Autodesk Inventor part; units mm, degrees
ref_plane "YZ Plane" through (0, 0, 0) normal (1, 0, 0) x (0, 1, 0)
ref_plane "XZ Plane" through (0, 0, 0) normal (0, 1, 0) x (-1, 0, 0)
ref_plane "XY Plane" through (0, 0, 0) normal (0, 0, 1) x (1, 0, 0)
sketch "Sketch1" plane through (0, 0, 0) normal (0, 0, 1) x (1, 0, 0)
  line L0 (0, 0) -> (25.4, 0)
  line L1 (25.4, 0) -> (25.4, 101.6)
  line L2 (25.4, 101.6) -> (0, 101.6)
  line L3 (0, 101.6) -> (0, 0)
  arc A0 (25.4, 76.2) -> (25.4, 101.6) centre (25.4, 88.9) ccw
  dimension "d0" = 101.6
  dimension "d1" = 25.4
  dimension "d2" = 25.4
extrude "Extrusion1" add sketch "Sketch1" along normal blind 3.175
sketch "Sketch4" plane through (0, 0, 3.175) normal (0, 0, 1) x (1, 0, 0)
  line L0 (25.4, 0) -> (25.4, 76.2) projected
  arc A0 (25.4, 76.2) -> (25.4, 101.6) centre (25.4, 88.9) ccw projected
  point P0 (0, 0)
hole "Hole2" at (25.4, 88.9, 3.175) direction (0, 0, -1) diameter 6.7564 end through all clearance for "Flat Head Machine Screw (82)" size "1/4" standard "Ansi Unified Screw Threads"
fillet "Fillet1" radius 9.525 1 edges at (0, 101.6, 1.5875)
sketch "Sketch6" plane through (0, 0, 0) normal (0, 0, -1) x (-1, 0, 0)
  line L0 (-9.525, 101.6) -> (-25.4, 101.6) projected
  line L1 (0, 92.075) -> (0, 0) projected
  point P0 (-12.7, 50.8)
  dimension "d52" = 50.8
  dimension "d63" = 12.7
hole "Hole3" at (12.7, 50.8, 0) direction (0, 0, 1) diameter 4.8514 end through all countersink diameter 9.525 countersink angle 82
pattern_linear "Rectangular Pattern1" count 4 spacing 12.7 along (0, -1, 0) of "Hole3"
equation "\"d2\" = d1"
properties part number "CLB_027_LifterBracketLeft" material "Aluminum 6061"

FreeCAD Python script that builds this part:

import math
import FreeCAD as App
import Part
import Sketcher

V = App.Vector
Q = App.Units.Quantity


def edges_at(feature, points):
    """Names of the edges that pass closest to the given points."""
    edges = feature.Shape.Edges
    near = lambda p: min(range(len(edges)), key=lambda i: edges[i].distToShape(Part.Vertex(*p))[0])
    return sorted({f"Edge{near(p) + 1}" for p in points})

doc = App.newDocument("Part")
body = doc.addObject("PartDesign::Body", "Body")

# Sketch on XY plane
sketch1 = body.newObject("Sketcher::SketchObject", "Sketch")
sketch1.AttachmentSupport = (doc.getObject("XY_Plane"), [""])
sketch1.MapMode = "FlatFace"
sketch1.addGeometry([
    Part.LineSegment(V(0, 101.6, 0), V(0, 0, 0)),  # 0
    Part.LineSegment(V(0, 0, 0), V(25.4, 0, 0)),  # 1
    Part.LineSegment(V(25.4, 0, 0), V(25.4, 76.2, 0)),  # 2
    Part.ArcOfCircle(Part.Circle(V(25.4, 88.9, 0), V(0, 0, 1), 12.7), math.radians(-90), math.radians(90)),  # 3
    Part.LineSegment(V(25.4, 101.6, 0), V(0, 101.6, 0)),  # 4
], False)
sketch1.addConstraint([
    Sketcher.Constraint("Coincident", 0, 2, 1, 1),
    Sketcher.Constraint("Coincident", 1, 2, 2, 1),
    Sketcher.Constraint("Coincident", 2, 2, 3, 1),
    Sketcher.Constraint("Tangent", 3, 2, 4, 1),
    Sketcher.Constraint("Coincident", 4, 2, 0, 1),
    Sketcher.Constraint("Vertical", 0),
    Sketcher.Constraint("Horizontal", 1),
    Sketcher.Constraint("Vertical", 2),
    Sketcher.Constraint("Horizontal", 4),
    Sketcher.Constraint("Coincident", 0, 2, -1, 1),
    Sketcher.Constraint("Vertical", 3, 3, 1, 2),
    Sketcher.Constraint("Radius", 3, Q("0.5 in")),
    Sketcher.Constraint("DistanceX", 1, 1, 1, 2, Q("1 in")),
    Sketcher.Constraint("DistanceY", 0, 2, 0, 1, Q("4 in")),
])
pad1 = body.newObject("PartDesign::Pad", "Pad")
pad1.Profile = sketch1
pad1.Length = Q("0.125 in")

# Sketch on XY plane
sketch2 = body.newObject("Sketcher::SketchObject", "Sketch001")
sketch2.AttachmentSupport = (doc.getObject("XY_Plane"), [""])
sketch2.MapMode = "FlatFace"
sketch2.AttachmentOffset = App.Placement(V(0, 0, 0.125 * 25.4), App.Rotation())
sketch2.addGeometry(Part.Circle(V(25.4, 88.9, 0), V(0, 0, 1), 3.3782), False)
sketch2.addConstraint([
    Sketcher.Constraint("Diameter", 0, Q("0.266 in")),
    Sketcher.Constraint("DistanceX", -1, 1, 0, 3, Q("1 in")),
    Sketcher.Constraint("DistanceY", -1, 1, 0, 3, Q("3.5 in")),
])
doc.recompute()
hole = body.newObject("PartDesign::Hole", "Hole")
hole.Profile = sketch2
hole.ThreadType = "None"
hole.Diameter = Q("0.266 in")
hole.DepthType = "ThroughAll"
doc.recompute()

fillet = body.newObject("PartDesign::Fillet", "Fillet")
fillet.Base = (hole, edges_at(hole, [(0, 101.6, 1.587)]))
fillet.Radius = Q("0.375 in")

# Sketch on XY plane
sketch3 = body.newObject("Sketcher::SketchObject", "Sketch002")
sketch3.AttachmentSupport = (doc.getObject("XY_Plane"), [""])
sketch3.MapMode = "FlatFace"
sketch3.addGeometry(Part.Circle(V(12.7, 50.8, 0), V(0, 0, 1), 2.4257), False)
sketch3.addConstraint([
    Sketcher.Constraint("Diameter", 0, Q("0.191 in")),
    Sketcher.Constraint("DistanceY", -1, 1, 0, 3, Q("2 in")),
    Sketcher.Constraint("DistanceX", -1, 1, 0, 3, Q("0.5 in")),
])
doc.recompute()
hole2 = body.newObject("PartDesign::Hole", "Hole001")
hole2.Profile = sketch3
hole2.ThreadType = "None"
hole2.Diameter = Q("0.191 in")
hole2.DepthType = "ThroughAll"
hole2.HoleCutType = "Countersink"
hole2.HoleCutDiameter = Q("0.375 in")
hole2.HoleCutCountersinkAngle = 82
hole2.Reversed = True
doc.recompute()

linearpattern = body.newObject("PartDesign::LinearPattern", "LinearPattern")
linearpattern.Originals = [hole2]
linearpattern.Direction = (doc.getObject("Y_Axis"), [""])
linearpattern.Mode = "offset"
linearpattern.Offset = Q("0.5 in")
linearpattern.Occurrences = 4
linearpattern.Reversed = True
body.Tip = linearpattern

doc.recompute()
